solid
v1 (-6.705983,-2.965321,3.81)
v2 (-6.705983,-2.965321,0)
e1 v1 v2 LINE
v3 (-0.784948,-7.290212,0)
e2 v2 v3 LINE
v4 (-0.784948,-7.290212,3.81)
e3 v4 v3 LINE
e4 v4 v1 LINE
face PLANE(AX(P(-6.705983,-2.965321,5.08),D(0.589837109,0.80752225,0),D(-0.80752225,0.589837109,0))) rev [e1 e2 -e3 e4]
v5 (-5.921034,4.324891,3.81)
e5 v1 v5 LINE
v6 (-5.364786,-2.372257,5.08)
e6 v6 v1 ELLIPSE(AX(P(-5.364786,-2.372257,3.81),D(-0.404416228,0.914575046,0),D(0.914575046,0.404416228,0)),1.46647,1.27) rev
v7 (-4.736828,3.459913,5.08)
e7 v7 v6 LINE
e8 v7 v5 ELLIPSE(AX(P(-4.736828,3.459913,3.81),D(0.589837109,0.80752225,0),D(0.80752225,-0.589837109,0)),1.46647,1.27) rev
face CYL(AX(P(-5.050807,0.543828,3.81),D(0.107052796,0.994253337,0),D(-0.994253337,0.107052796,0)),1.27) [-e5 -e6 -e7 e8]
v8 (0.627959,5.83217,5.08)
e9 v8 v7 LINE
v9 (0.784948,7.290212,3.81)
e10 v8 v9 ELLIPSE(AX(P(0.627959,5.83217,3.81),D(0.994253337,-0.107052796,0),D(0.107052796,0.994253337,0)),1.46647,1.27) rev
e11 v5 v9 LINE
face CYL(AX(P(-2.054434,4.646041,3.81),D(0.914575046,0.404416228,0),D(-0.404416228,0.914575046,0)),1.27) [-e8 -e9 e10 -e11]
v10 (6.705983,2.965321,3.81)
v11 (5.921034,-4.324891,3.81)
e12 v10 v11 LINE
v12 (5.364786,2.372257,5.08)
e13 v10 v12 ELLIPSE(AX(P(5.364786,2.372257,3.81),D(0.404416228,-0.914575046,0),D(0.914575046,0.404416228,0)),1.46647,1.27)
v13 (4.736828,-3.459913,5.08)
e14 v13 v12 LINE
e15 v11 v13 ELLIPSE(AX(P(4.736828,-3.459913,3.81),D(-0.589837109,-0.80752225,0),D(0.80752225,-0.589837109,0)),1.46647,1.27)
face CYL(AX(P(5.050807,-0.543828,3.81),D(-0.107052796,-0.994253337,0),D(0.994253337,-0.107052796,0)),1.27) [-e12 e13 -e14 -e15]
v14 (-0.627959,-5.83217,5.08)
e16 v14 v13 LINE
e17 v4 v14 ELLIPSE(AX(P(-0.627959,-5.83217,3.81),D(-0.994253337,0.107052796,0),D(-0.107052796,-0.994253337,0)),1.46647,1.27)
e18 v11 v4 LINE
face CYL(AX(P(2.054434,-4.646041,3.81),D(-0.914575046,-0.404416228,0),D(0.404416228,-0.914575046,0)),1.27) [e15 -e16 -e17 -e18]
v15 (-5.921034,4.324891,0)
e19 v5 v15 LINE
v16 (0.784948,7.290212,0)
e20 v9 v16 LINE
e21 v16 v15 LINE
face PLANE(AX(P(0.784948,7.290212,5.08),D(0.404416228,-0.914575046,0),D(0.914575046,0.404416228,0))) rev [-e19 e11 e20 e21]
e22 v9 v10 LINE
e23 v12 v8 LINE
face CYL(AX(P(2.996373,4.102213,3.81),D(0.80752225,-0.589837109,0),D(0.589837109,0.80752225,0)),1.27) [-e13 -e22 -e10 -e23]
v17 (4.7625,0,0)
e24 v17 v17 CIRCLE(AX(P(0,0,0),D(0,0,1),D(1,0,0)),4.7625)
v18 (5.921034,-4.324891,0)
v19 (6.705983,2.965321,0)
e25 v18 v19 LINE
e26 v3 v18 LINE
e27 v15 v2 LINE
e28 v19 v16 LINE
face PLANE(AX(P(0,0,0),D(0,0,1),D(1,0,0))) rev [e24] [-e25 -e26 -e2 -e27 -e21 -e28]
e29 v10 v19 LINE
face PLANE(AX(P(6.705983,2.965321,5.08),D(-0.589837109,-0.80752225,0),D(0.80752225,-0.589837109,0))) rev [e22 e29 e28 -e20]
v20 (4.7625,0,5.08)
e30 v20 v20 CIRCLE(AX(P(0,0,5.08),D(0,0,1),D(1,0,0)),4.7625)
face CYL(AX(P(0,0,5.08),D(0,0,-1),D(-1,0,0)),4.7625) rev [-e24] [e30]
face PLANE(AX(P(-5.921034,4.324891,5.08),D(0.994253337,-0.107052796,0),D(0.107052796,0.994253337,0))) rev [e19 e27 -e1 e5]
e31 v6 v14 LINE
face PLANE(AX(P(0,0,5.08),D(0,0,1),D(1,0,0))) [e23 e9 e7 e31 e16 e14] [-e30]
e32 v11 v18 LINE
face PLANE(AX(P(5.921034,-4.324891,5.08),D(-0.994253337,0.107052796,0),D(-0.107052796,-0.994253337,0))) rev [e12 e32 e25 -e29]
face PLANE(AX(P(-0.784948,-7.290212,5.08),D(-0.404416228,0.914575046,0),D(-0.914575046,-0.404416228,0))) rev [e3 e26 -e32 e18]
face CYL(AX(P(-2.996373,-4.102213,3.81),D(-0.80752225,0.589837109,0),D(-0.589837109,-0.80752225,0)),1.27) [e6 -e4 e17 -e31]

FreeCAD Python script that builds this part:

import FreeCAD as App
import Part
import Sketcher
Q = App.Units.Quantity


def edges_at(feature, points):
    """Names of the edges that pass closest to the given points."""
    edges = feature.Shape.Edges
    near = lambda p: min(range(len(edges)), key=lambda i: edges[i].distToShape(Part.Vertex(*p))[0])
    return sorted({f"Edge{near(p) + 1}" for p in points})


def add_polygon(sketch, points):
    """Adds a closed chain of lines whose ends are joined by coincident constraints."""
    first, n = sketch.GeometryCount, len(points)
    for a, b in zip(points, points[1:] + points[:1]):
        sketch.addGeometry(Part.LineSegment(App.Vector(*a, 0), App.Vector(*b, 0)), False)
    for i in range(n):
        sketch.addConstraint(Sketcher.Constraint("Coincident", first + i, 2, first + (i + 1) % n, 1))

doc = App.newDocument("Part")
body = doc.addObject("PartDesign::Body", "Body")

# Sketch on XY plane
sketch1 = body.newObject("Sketcher::SketchObject", "Sketch")
sketch1.AttachmentSupport = (doc.getObject("XY_Plane"), [""])
sketch1.MapMode = "FlatFace"
add_polygon(sketch1, [(6.7, 3), (0.8, 7.3), (-5.9, 4.3), (-6.7, -3), (-0.8, -7.3), (5.9, -4.3)])  # lines 0-5
sketch1.addGeometry(Part.Circle(App.Vector(0, 0, 0), App.Vector(0, 0, 1), 4.8), False)  # 6
sketch1.addConstraint(Sketcher.Constraint("Coincident", 6, 3, -1, 1))
sketch1.addConstraint(Sketcher.Constraint("Symmetric", 0, 2, 3, 2, -1, 1))
sketch1.addConstraint(Sketcher.Constraint("Symmetric", 1, 2, 4, 2, -1, 1))
sketch1.addConstraint(Sketcher.Constraint("Symmetric", 2, 2, 5, 2, -1, 1))
sketch1.addConstraint(Sketcher.Constraint("Equal", 0, 1))
sketch1.addConstraint(Sketcher.Constraint("Equal", 1, 2))
sketch1.addConstraint(Sketcher.Constraint("Diameter", 6, Q("0.375 in")))
sketch1.addConstraint(Sketcher.Constraint("Distance", 0, 7.332348))
sketch1.addConstraint(Sketcher.Constraint("DistanceX", -1, 1, 0, 2, 0.784948))
sketch1.addConstraint(Sketcher.Constraint("DistanceY", -1, 1, 0, 2, 7.290212))
sketch1.addConstraint(Sketcher.Constraint("DistanceY", -1, 1, 1, 2, 4.324891))
pad1 = body.newObject("PartDesign::Pad", "Pad")
pad1.Profile = sketch1
pad1.Length = Q("0.2 in")
doc.recompute()

fillet = body.newObject("PartDesign::Fillet", "Fillet")
fillet.Base = (pad1, edges_at(pad1, [
    (-2.568, 5.808, 5.08),
    (-6.314, 0.68, 5.08),
    (-3.745, -5.128, 5.08),
    (2.568, -5.808, 5.08),
    (6.314, -0.68, 5.08),
    (3.745, 5.128, 5.08),
]))
fillet.Radius = Q("0.05 in")

doc.recompute()
